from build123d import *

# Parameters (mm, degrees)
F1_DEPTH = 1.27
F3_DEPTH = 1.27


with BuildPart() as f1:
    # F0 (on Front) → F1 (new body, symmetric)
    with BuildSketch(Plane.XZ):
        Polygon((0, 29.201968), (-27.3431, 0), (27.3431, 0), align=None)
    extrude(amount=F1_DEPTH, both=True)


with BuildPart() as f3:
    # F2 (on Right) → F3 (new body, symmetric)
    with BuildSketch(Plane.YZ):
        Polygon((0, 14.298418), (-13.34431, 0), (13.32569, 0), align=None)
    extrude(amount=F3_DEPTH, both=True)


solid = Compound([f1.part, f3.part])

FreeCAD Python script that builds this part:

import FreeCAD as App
import Part
import Sketcher
Q = App.Units.Quantity

doc = App.newDocument("Part")
params = doc.addObject("Spreadsheet::Sheet", "Params")
for row, (alias, value) in enumerate([
    ("sketch1_width", "2.153 in"),
    ("sketch1_length", "1.575 in"),
    ("pad1_length", "0.1 in"),
    ("sketch2_width", "1.05 in"),
    ("sketch2_length", "0.77 in"),
    ("pad2_length", "0.1 in"),
], start=1):
    params.set(f"A{row}", alias)
    params.set(f"B{row}", "=" + value)
    params.setAlias(f"B{row}", alias)

body = doc.addObject("PartDesign::Body", "Body")

# Sketch on XZ plane
sketch1 = body.newObject("Sketcher::SketchObject", "Sketch")
sketch1.AttachmentSupport = (doc.getObject("XZ_Plane"), [""])
sketch1.MapMode = "FlatFace"
sketch1.addGeometry(Part.LineSegment(App.Vector(0, 29, 0), App.Vector(-27, 0, 0)), False)
sketch1.addGeometry(Part.LineSegment(App.Vector(-27, 0, 0), App.Vector(27, 0, 0)), False)
sketch1.addGeometry(Part.LineSegment(App.Vector(27, 0, 0), App.Vector(0, 29, 0)), False)
sketch1.addConstraint(Sketcher.Constraint("Coincident", 0, 2, 1, 1))
sketch1.addConstraint(Sketcher.Constraint("Coincident", 1, 2, 2, 1))
sketch1.addConstraint(Sketcher.Constraint("Coincident", 2, 2, 0, 1))
sketch1.addConstraint(Sketcher.Constraint("Horizontal", 1))
sketch1.addConstraint(Sketcher.Constraint("Symmetric", 0, 2, 1, 2, -1, 1))
sketch1.addConstraint(Sketcher.Constraint("PointOnObject", 2, 2, -2))
sketch1.addConstraint(Sketcher.Constraint("DistanceX", 1, 1, 1, 2, Q("2.153 in")))
sketch1.addConstraint(Sketcher.Constraint("Distance", 0, Q("1.575 in")))
sketch1.setExpression("Constraints[6]", "Params.sketch1_width")
sketch1.setExpression("Constraints[7]", "Params.sketch1_length")
pad1 = body.newObject("PartDesign::Pad", "Pad")
pad1.Profile = sketch1
pad1.setExpression("Length", "Params.pad1_length")
pad1.Midplane = True
body2 = doc.addObject("PartDesign::Body", "Body001")

# Sketch on YZ plane
sketch2 = body2.newObject("Sketcher::SketchObject", "Sketch001")
sketch2.AttachmentSupport = (doc.getObject("YZ_Plane001"), [""])
sketch2.MapMode = "FlatFace"
sketch2.addGeometry(Part.LineSegment(App.Vector(0, 14, 0), App.Vector(-13, 0, 0)), False)
sketch2.addGeometry(Part.LineSegment(App.Vector(-13, 0, 0), App.Vector(13, 0, 0)), False)
sketch2.addGeometry(Part.LineSegment(App.Vector(13, 0, 0), App.Vector(0, 14, 0)), False)
sketch2.addConstraint(Sketcher.Constraint("Coincident", 0, 2, 1, 1))
sketch2.addConstraint(Sketcher.Constraint("Coincident", 1, 2, 2, 1))
sketch2.addConstraint(Sketcher.Constraint("Coincident", 2, 2, 0, 1))
sketch2.addConstraint(Sketcher.Constraint("Horizontal", 1))
sketch2.addConstraint(Sketcher.Constraint("PointOnObject", 0, 2, -1))
sketch2.addConstraint(Sketcher.Constraint("PointOnObject", 2, 2, -2))
sketch2.addConstraint(Sketcher.Constraint("DistanceX", 1, 1, 1, 2, Q("1.05 in")))
sketch2.addConstraint(Sketcher.Constraint("Distance", 0, Q("0.77 in")))
sketch2.addConstraint(Sketcher.Constraint("Distance", 2, Q("0.7695 in")))
sketch2.setExpression("Constraints[6]", "Params.sketch2_width")
sketch2.setExpression("Constraints[7]", "Params.sketch2_length")
pad2 = body2.newObject("PartDesign::Pad", "Pad001")
pad2.Profile = sketch2
pad2.setExpression("Length", "Params.pad2_length")
pad2.Midplane = True

doc.recompute()
